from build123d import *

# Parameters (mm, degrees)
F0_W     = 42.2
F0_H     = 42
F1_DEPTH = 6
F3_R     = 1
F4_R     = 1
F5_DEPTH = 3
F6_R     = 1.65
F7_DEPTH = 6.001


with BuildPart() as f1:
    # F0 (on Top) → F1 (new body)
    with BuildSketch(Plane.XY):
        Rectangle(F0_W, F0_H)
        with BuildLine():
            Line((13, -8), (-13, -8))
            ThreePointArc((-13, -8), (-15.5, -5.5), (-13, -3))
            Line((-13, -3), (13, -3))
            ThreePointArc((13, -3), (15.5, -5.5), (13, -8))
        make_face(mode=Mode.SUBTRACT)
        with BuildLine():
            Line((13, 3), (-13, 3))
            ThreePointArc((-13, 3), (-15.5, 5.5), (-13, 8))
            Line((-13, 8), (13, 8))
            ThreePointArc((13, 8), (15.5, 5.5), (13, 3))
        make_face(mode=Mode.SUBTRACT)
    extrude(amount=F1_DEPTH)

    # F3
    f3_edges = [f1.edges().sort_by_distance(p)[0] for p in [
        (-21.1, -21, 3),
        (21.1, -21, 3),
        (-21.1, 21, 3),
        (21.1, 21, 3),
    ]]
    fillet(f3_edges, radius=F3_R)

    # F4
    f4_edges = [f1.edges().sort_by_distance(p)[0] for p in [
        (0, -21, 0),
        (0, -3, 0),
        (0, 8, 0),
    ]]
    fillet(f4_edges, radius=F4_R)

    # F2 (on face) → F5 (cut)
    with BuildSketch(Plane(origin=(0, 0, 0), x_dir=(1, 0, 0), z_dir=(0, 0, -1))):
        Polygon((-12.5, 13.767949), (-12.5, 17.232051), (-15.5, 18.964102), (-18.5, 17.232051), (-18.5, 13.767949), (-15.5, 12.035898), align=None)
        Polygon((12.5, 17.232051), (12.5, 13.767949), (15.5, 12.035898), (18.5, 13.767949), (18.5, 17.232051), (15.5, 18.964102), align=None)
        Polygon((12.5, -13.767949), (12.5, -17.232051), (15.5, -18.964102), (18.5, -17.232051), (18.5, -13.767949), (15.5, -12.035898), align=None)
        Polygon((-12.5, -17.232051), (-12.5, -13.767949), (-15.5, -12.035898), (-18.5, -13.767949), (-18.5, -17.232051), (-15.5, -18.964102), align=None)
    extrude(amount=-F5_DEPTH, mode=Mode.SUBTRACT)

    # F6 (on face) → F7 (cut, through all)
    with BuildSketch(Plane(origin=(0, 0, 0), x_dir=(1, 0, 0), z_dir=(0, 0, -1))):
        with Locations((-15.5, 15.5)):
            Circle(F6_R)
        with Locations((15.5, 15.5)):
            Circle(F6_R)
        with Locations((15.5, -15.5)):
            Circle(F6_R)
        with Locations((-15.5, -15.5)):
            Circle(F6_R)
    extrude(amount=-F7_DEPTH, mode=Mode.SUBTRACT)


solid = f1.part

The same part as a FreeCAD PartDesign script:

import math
import FreeCAD as App
import Part
import Sketcher
Q = App.Units.Quantity


def edges_at(feature, points):
    """Names of the edges that pass closest to the given points."""
    edges = feature.Shape.Edges
    near = lambda p: min(range(len(edges)), key=lambda i: edges[i].distToShape(Part.Vertex(*p))[0])
    return sorted({f"Edge{near(p) + 1}" for p in points})

doc = App.newDocument("Part")
params = doc.addObject("Spreadsheet::Sheet", "Params")
for row, (alias, value) in enumerate([
    ("sketch1_radius", "2.5 mm"),
    ("sketch1_width", "26 mm"),
    ("sketch1_height", "42 mm"),
    ("sketch1_width2", "42.2 mm"),
    ("pad1_length", "6 mm"),
    ("fillet_radius", "1 mm"),
    ("fillet2_radius", "1 mm"),
    ("pocket1_length", "3 mm"),
    ("sketch3_diameter", "3.3 mm"),
], start=1):
    params.set(f"A{row}", alias)
    params.set(f"B{row}", "=" + value)
    params.setAlias(f"B{row}", alias)

body = doc.addObject("PartDesign::Body", "Body")

# Sketch on XY plane
sketch1 = doc.addObject("Sketcher::SketchObject", "Sketch")
body.addObject(sketch1)
sketch1.AttachmentSupport = (doc.XY_Plane, [""])
sketch1.MapMode = "FlatFace"
sketch1.addGeometry(Part.LineSegment(App.Vector(-21.1, 21, 0), App.Vector(-21.1, -21, 0)), False)
sketch1.addGeometry(Part.LineSegment(App.Vector(-21.1, -21, 0), App.Vector(21.1, -21, 0)), False)
sketch1.addGeometry(Part.LineSegment(App.Vector(21.1, -21, 0), App.Vector(21.1, 21, 0)), False)
sketch1.addGeometry(Part.LineSegment(App.Vector(21.1, 21, 0), App.Vector(-21.1, 21, 0)), False)
sketch1.addGeometry(Part.ArcOfCircle(Part.Circle(App.Vector(13, -5.5, 0), App.Vector(0, 0, 1), 2.5), math.radians(-90), math.radians(90)), False)
sketch1.addGeometry(Part.LineSegment(App.Vector(13, -8, 0), App.Vector(-13, -8, 0)), False)
sketch1.addGeometry(Part.ArcOfCircle(Part.Circle(App.Vector(-13, -5.5, 0), App.Vector(0, 0, 1), 2.5), math.radians(90), math.radians(270)), False)
sketch1.addGeometry(Part.LineSegment(App.Vector(-13, -3, 0), App.Vector(13, -3, 0)), False)
sketch1.addGeometry(Part.ArcOfCircle(Part.Circle(App.Vector(13, 5.5, 0), App.Vector(0, 0, 1), 2.5), math.radians(-90), math.radians(90)), False)
sketch1.addGeometry(Part.LineSegment(App.Vector(13, 3, 0), App.Vector(-13, 3, 0)), False)
sketch1.addGeometry(Part.ArcOfCircle(Part.Circle(App.Vector(-13, 5.5, 0), App.Vector(0, 0, 1), 2.5), math.radians(90), math.radians(270)), False)
sketch1.addGeometry(Part.LineSegment(App.Vector(-13, 8, 0), App.Vector(13, 8, 0)), False)
sketch1.addConstraint(Sketcher.Constraint("Coincident", 0, 2, 1, 1))
sketch1.addConstraint(Sketcher.Constraint("Coincident", 1, 2, 2, 1))
sketch1.addConstraint(Sketcher.Constraint("Coincident", 2, 2, 3, 1))
sketch1.addConstraint(Sketcher.Constraint("Coincident", 3, 2, 0, 1))
sketch1.addConstraint(Sketcher.Constraint("Tangent", 4, 1, 5, 1))
sketch1.addConstraint(Sketcher.Constraint("Tangent", 5, 2, 6, 2))
sketch1.addConstraint(Sketcher.Constraint("Tangent", 6, 1, 7, 1))
sketch1.addConstraint(Sketcher.Constraint("Tangent", 7, 2, 4, 2))
sketch1.addConstraint(Sketcher.Constraint("Tangent", 8, 1, 9, 1))
sketch1.addConstraint(Sketcher.Constraint("Tangent", 9, 2, 10, 2))
sketch1.addConstraint(Sketcher.Constraint("Tangent", 10, 1, 11, 1))
sketch1.addConstraint(Sketcher.Constraint("Tangent", 11, 2, 8, 2))
sketch1.addConstraint(Sketcher.Constraint("Vertical", 0))
sketch1.addConstraint(Sketcher.Constraint("Horizontal", 1))
sketch1.addConstraint(Sketcher.Constraint("Vertical", 2))
sketch1.addConstraint(Sketcher.Constraint("Horizontal", 3))
sketch1.addConstraint(Sketcher.Constraint("Horizontal", 5))
sketch1.addConstraint(Sketcher.Constraint("Horizontal", 7))
sketch1.addConstraint(Sketcher.Constraint("Horizontal", 9))
sketch1.addConstraint(Sketcher.Constraint("Horizontal", 11))
sketch1.addConstraint(Sketcher.Constraint("Equal", 6, 8))
sketch1.addConstraint(Sketcher.Constraint("Symmetric", 6, 3, 8, 3, -1, 1))
sketch1.addConstraint(Sketcher.Constraint("Symmetric", 0, 2, 2, 2, -1, 1))
sketch1.addConstraint(Sketcher.Constraint("Vertical", 4, 3, 8, 3))
sketch1.addConstraint(Sketcher.Constraint("Vertical", 6, 3, 10, 3))
sketch1.addConstraint(Sketcher.Constraint("Radius", 4, 2.5))
sketch1.addConstraint(Sketcher.Constraint("DistanceX", 5, 2, 5, 1, 26.0))
sketch1.addConstraint(Sketcher.Constraint("DistanceY", 0, 2, 0, 1, 42.0))
sketch1.addConstraint(Sketcher.Constraint("DistanceX", 1, 1, 1, 2, 42.2))
sketch1.addConstraint(Sketcher.Constraint("DistanceY", 4, 1, -1, 1, 8.0))
sketch1.setExpression("Constraints[25]", "Params.sketch1_radius")
sketch1.setExpression("Constraints[26]", "Params.sketch1_width")
sketch1.setExpression("Constraints[27]", "Params.sketch1_height")
sketch1.setExpression("Constraints[28]", "Params.sketch1_width2")
pad1 = doc.addObject("PartDesign::Pad", "Pad")
body.addObject(pad1)
pad1.Profile = sketch1
pad1.setExpression("Length", "Params.pad1_length")
doc.recompute()

fillet = doc.addObject("PartDesign::Fillet", "Fillet")
body.addObject(fillet)
fillet.Base = (pad1, edges_at(pad1, [
    (-21.1, -21, 3),
    (21.1, -21, 3),
    (-21.1, 21, 3),
    (21.1, 21, 3),
]))
fillet.setExpression("Radius", "Params.fillet_radius")
doc.recompute()

fillet2 = doc.addObject("PartDesign::Fillet", "Fillet001")
body.addObject(fillet2)
fillet2.Base = (fillet, edges_at(fillet, [(0, -21, 0), (0, -3, 0), (0, 8, 0)]))
fillet2.setExpression("Radius", "Params.fillet2_radius")

# Sketch on XY plane
sketch2 = doc.addObject("Sketcher::SketchObject", "Sketch001")
body.addObject(sketch2)
sketch2.AttachmentSupport = (doc.XY_Plane, [""])
sketch2.MapMode = "FlatFace"
sketch2.addGeometry(Part.LineSegment(App.Vector(-12.5, -13.8, 0), App.Vector(-12.5, -17.2, 0)), False)
sketch2.addGeometry(Part.LineSegment(App.Vector(-12.5, -17.2, 0), App.Vector(-15.5, -19, 0)), False)
sketch2.addGeometry(Part.LineSegment(App.Vector(-15.5, -19, 0), App.Vector(-18.5, -17.2, 0)), False)
sketch2.addGeometry(Part.LineSegment(App.Vector(-18.5, -17.2, 0), App.Vector(-18.5, -13.8, 0)), False)
sketch2.addGeometry(Part.LineSegment(App.Vector(-18.5, -13.8, 0), App.Vector(-15.5, -12, 0)), False)
sketch2.addGeometry(Part.LineSegment(App.Vector(-15.5, -12, 0), App.Vector(-12.5, -13.8, 0)), False)
sketch2.addGeometry(Part.LineSegment(App.Vector(12.5, -17.2, 0), App.Vector(12.5, -13.8, 0)), False)
sketch2.addGeometry(Part.LineSegment(App.Vector(12.5, -13.8, 0), App.Vector(15.5, -12, 0)), False)
sketch2.addGeometry(Part.LineSegment(App.Vector(15.5, -12, 0), App.Vector(18.5, -13.8, 0)), False)
sketch2.addGeometry(Part.LineSegment(App.Vector(18.5, -13.8, 0), App.Vector(18.5, -17.2, 0)), False)
sketch2.addGeometry(Part.LineSegment(App.Vector(18.5, -17.2, 0), App.Vector(15.5, -19, 0)), False)
sketch2.addGeometry(Part.LineSegment(App.Vector(15.5, -19, 0), App.Vector(12.5, -17.2, 0)), False)
sketch2.addGeometry(Part.LineSegment(App.Vector(12.5, 13.8, 0), App.Vector(12.5, 17.2, 0)), False)
sketch2.addGeometry(Part.LineSegment(App.Vector(12.5, 17.2, 0), App.Vector(15.5, 19, 0)), False)
sketch2.addGeometry(Part.LineSegment(App.Vector(15.5, 19, 0), App.Vector(18.5, 17.2, 0)), False)
sketch2.addGeometry(Part.LineSegment(App.Vector(18.5, 17.2, 0), App.Vector(18.5, 13.8, 0)), False)
sketch2.addGeometry(Part.LineSegment(App.Vector(18.5, 13.8, 0), App.Vector(15.5, 12, 0)), False)
sketch2.addGeometry(Part.LineSegment(App.Vector(15.5, 12, 0), App.Vector(12.5, 13.8, 0)), False)
sketch2.addGeometry(Part.LineSegment(App.Vector(-12.5, 17.2, 0), App.Vector(-12.5, 13.8, 0)), False)
sketch2.addGeometry(Part.LineSegment(App.Vector(-12.5, 13.8, 0), App.Vector(-15.5, 12, 0)), False)
sketch2.addGeometry(Part.LineSegment(App.Vector(-15.5, 12, 0), App.Vector(-18.5, 13.8, 0)), False)
sketch2.addGeometry(Part.LineSegment(App.Vector(-18.5, 13.8, 0), App.Vector(-18.5, 17.2, 0)), False)
sketch2.addGeometry(Part.LineSegment(App.Vector(-18.5, 17.2, 0), App.Vector(-15.5, 19, 0)), False)
sketch2.addGeometry(Part.LineSegment(App.Vector(-15.5, 19, 0), App.Vector(-12.5, 17.2, 0)), False)
sketch2.addConstraint(Sketcher.Constraint("Coincident", 0, 2, 1, 1))
sketch2.addConstraint(Sketcher.Constraint("Coincident", 1, 2, 2, 1))
sketch2.addConstraint(Sketcher.Constraint("Coincident", 2, 2, 3, 1))
sketch2.addConstraint(Sketcher.Constraint("Coincident", 3, 2, 4, 1))
sketch2.addConstraint(Sketcher.Constraint("Coincident", 4, 2, 5, 1))
sketch2.addConstraint(Sketcher.Constraint("Coincident", 5, 2, 0, 1))
sketch2.addConstraint(Sketcher.Constraint("Coincident", 6, 2, 7, 1))
sketch2.addConstraint(Sketcher.Constraint("Coincident", 7, 2, 8, 1))
sketch2.addConstraint(Sketcher.Constraint("Coincident", 8, 2, 9, 1))
sketch2.addConstraint(Sketcher.Constraint("Coincident", 9, 2, 10, 1))
sketch2.addConstraint(Sketcher.Constraint("Coincident", 10, 2, 11, 1))
sketch2.addConstraint(Sketcher.Constraint("Coincident", 11, 2, 6, 1))
sketch2.addConstraint(Sketcher.Constraint("Coincident", 12, 2, 13, 1))
sketch2.addConstraint(Sketcher.Constraint("Coincident", 13, 2, 14, 1))
sketch2.addConstraint(Sketcher.Constraint("Coincident", 14, 2, 15, 1))
sketch2.addConstraint(Sketcher.Constraint("Coincident", 15, 2, 16, 1))
sketch2.addConstraint(Sketcher.Constraint("Coincident", 16, 2, 17, 1))
sketch2.addConstraint(Sketcher.Constraint("Coincident", 17, 2, 12, 1))
sketch2.addConstraint(Sketcher.Constraint("Coincident", 18, 2, 19, 1))
sketch2.addConstraint(Sketcher.Constraint("Coincident", 19, 2, 20, 1))
sketch2.addConstraint(Sketcher.Constraint("Coincident", 20, 2, 21, 1))
sketch2.addConstraint(Sketcher.Constraint("Coincident", 21, 2, 22, 1))
sketch2.addConstraint(Sketcher.Constraint("Coincident", 22, 2, 23, 1))
sketch2.addConstraint(Sketcher.Constraint("Coincident", 23, 2, 18, 1))
sketch2.addConstraint(Sketcher.Constraint("Vertical", 0))
sketch2.addConstraint(Sketcher.Constraint("Vertical", 3))
sketch2.addConstraint(Sketcher.Constraint("Vertical", 6))
sketch2.addConstraint(Sketcher.Constraint("Vertical", 9))
sketch2.addConstraint(Sketcher.Constraint("Vertical", 12))
sketch2.addConstraint(Sketcher.Constraint("Vertical", 15))
sketch2.addConstraint(Sketcher.Constraint("Vertical", 18))
sketch2.addConstraint(Sketcher.Constraint("Vertical", 21))
sketch2.addConstraint(Sketcher.Constraint("Symmetric", 0, 2, 12, 2, -1, 1))
sketch2.addConstraint(Sketcher.Constraint("Symmetric", 1, 2, 13, 2, -1, 1))
sketch2.addConstraint(Sketcher.Constraint("Symmetric", 2, 2, 14, 2, -1, 1))
sketch2.addConstraint(Sketcher.Constraint("Symmetric", 4, 2, 16, 2, -1, 1))
sketch2.addConstraint(Sketcher.Constraint("Symmetric", 6, 2, 18, 2, -1, 1))
sketch2.addConstraint(Sketcher.Constraint("Symmetric", 7, 2, 19, 2, -1, 1))
sketch2.addConstraint(Sketcher.Constraint("Symmetric", 8, 2, 20, 2, -1, 1))
sketch2.addConstraint(Sketcher.Constraint("Symmetric", 10, 2, 22, 2, -1, 1))
sketch2.addConstraint(Sketcher.Constraint("Symmetric", 5, 2, 6, 2, -2))
sketch2.addConstraint(Sketcher.Constraint("Symmetric", 4, 2, 7, 2, -2))
sketch2.addConstraint(Sketcher.Constraint("Symmetric", 3, 2, 8, 2, -2))
sketch2.addConstraint(Sketcher.Constraint("Symmetric", 1, 2, 10, 2, -2))
sketch2.addConstraint(Sketcher.Constraint("Parallel", 1, 4))
sketch2.addConstraint(Sketcher.Constraint("Parallel", 2, 5))
sketch2.addConstraint(Sketcher.Constraint("Parallel", 4, 7))
sketch2.addConstraint(Sketcher.Constraint("Parallel", 7, 10))
sketch2.addConstraint(Sketcher.Constraint("Parallel", 8, 11))
sketch2.addConstraint(Sketcher.Constraint("Parallel", 13, 16))
sketch2.addConstraint(Sketcher.Constraint("Parallel", 14, 17))
sketch2.addConstraint(Sketcher.Constraint("Parallel", 19, 22))
sketch2.addConstraint(Sketcher.Constraint("Parallel", 20, 23))
sketch2.addConstraint(Sketcher.Constraint("Horizontal", 0, 2, 2, 2))
sketch2.addConstraint(Sketcher.Constraint("Horizontal", 3, 2, 5, 2))
sketch2.addConstraint(Sketcher.Constraint("Angle", 1, Q("-149.999997 deg")))
sketch2.addConstraint(Sketcher.Constraint("DistanceX", 1, 2, 0, 2, 3.0))
sketch2.addConstraint(Sketcher.Constraint("DistanceX", 5, 2, 6, 2, 25.0))
sketch2.addConstraint(Sketcher.Constraint("DistanceY", 6, 2, 12, 2, 31.0))
sketch2.addConstraint(Sketcher.Constraint("DistanceY", 0, 2, 0, 1, 3.464102))
pocket1 = doc.addObject("PartDesign::Pocket", "Pocket")
body.addObject(pocket1)
pocket1.Profile = sketch2
pocket1.setExpression("Length", "Params.pocket1_length")
pocket1.Reversed = True

# Sketch on XY plane
sketch3 = doc.addObject("Sketcher::SketchObject", "Sketch002")
body.addObject(sketch3)
sketch3.AttachmentSupport = (doc.XY_Plane, [""])
sketch3.MapMode = "FlatFace"
sketch3.addGeometry(Part.Circle(App.Vector(-15.5, -15.5, 0), App.Vector(0, 0, 1), 1.6), False)
sketch3.addGeometry(Part.Circle(App.Vector(15.5, -15.5, 0), App.Vector(0, 0, 1), 1.6), False)
sketch3.addGeometry(Part.Circle(App.Vector(15.5, 15.5, 0), App.Vector(0, 0, 1), 1.6), False)
sketch3.addGeometry(Part.Circle(App.Vector(-15.5, 15.5, 0), App.Vector(0, 0, 1), 1.6), False)
sketch3.addConstraint(Sketcher.Constraint("Equal", 0, 1))
sketch3.addConstraint(Sketcher.Constraint("Equal", 1, 2))
sketch3.addConstraint(Sketcher.Constraint("Equal", 2, 3))
sketch3.addConstraint(Sketcher.Constraint("Symmetric", 0, 3, 2, 3, -1, 1))
sketch3.addConstraint(Sketcher.Constraint("Symmetric", 1, 3, 3, 3, -1, 1))
sketch3.addConstraint(Sketcher.Constraint("Symmetric", 0, 3, 1, 3, -2))
sketch3.addConstraint(Sketcher.Constraint("Diameter", 0, 3.3))
sketch3.addConstraint(Sketcher.Constraint("DistanceX", 0, 3, 1, 3, 31.0))
sketch3.addConstraint(Sketcher.Constraint("DistanceY", 1, 3, 2, 3, 31.0))
sketch3.setExpression("Constraints[6]", "Params.sketch3_diameter")
pocket2 = doc.addObject("PartDesign::Pocket", "Pocket001")
body.addObject(pocket2)
pocket2.Profile = sketch3
pocket2.Type = "ThroughAll"
pocket2.Reversed = True

doc.recompute()
